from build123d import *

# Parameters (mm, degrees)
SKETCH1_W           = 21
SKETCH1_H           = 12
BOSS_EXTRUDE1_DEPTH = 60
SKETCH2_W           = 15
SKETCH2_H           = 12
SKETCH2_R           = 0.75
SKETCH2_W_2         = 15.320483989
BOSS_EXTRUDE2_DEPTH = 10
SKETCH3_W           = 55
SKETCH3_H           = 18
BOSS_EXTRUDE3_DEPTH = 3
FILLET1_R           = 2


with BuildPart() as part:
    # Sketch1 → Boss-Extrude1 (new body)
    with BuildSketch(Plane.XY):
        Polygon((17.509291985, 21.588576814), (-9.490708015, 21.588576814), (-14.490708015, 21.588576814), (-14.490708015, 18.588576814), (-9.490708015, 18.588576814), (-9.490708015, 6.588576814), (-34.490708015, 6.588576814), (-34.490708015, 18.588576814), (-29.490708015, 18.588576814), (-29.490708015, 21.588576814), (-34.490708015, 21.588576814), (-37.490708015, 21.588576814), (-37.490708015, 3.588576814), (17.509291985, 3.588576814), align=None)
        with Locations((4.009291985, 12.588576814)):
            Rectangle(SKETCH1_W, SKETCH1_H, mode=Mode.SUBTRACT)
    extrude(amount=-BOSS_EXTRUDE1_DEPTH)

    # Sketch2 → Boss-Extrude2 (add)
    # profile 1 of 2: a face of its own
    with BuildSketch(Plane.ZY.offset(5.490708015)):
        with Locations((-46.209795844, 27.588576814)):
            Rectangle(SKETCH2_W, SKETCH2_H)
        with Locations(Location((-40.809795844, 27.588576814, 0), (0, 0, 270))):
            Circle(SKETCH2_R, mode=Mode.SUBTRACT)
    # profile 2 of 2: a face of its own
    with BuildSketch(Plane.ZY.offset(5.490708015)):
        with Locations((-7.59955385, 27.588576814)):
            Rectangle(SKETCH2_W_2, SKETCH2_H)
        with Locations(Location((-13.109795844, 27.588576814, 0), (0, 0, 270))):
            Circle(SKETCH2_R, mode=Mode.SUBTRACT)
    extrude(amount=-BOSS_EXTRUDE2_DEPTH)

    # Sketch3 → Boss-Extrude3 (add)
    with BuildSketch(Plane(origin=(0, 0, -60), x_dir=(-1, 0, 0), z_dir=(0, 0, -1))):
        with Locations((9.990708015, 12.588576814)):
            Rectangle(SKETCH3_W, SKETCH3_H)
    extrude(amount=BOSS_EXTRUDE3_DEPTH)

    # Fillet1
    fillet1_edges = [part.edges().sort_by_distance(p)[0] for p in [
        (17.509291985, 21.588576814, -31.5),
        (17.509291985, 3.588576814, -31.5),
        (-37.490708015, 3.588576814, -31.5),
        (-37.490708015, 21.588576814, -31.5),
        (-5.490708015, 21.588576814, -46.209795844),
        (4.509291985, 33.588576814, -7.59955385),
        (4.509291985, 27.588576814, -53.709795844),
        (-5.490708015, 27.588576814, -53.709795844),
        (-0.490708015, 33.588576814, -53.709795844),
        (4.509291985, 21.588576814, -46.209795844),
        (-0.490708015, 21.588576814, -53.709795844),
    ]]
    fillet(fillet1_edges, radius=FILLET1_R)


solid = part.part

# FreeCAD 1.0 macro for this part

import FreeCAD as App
import Part
import Sketcher


def edges_at(feature, points):
    """Names of the edges that pass closest to the given points."""
    edges = feature.Shape.Edges
    near = lambda p: min(range(len(edges)), key=lambda i: edges[i].distToShape(Part.Vertex(*p))[0])
    return sorted({f"Edge{near(p) + 1}" for p in points})


def add_polygon(sketch, points):
    """Adds a closed chain of lines whose ends are joined by coincident constraints."""
    first, n = sketch.GeometryCount, len(points)
    for a, b in zip(points, points[1:] + points[:1]):
        sketch.addGeometry(Part.LineSegment(App.Vector(*a, 0), App.Vector(*b, 0)), False)
    for i in range(n):
        sketch.addConstraint(Sketcher.Constraint("Coincident", first + i, 2, first + (i + 1) % n, 1))

doc = App.newDocument("Part")
body = doc.addObject("PartDesign::Body", "Body")

sketch1 = body.newObject("Sketcher::SketchObject", "Sketch")
sketch1.AttachmentSupport = (doc.getObject("XY_Plane"), [""])
sketch1.MapMode = "FlatFace"
add_polygon(sketch1, [(17.5, 21.6), (-14.5, 21.6), (-14.5, 18.6), (-9.5, 18.6), (-9.5, 6.6), (-34.5, 6.6), (-34.5, 18.6), (-29.5, 18.6), (-29.5, 21.6), (-37.5, 21.6), (-37.5, 3.6), (17.5, 3.6)])
add_polygon(sketch1, [(14.5, 6.6), (-6.5, 6.6), (-6.5, 18.6), (14.5, 18.6)])
sketch1.addConstraint([
    Sketcher.Constraint("Horizontal", 0),
    Sketcher.Constraint("Vertical", 1),
    Sketcher.Constraint("Horizontal", 2),
    Sketcher.Constraint("Vertical", 3),
    Sketcher.Constraint("Horizontal", 4),
    Sketcher.Constraint("Vertical", 5),
    Sketcher.Constraint("Horizontal", 6),
    Sketcher.Constraint("Vertical", 7),
    Sketcher.Constraint("Horizontal", 8),
    Sketcher.Constraint("Vertical", 9),
    Sketcher.Constraint("Horizontal", 10),
    Sketcher.Constraint("Vertical", 11),
    Sketcher.Constraint("Horizontal", 12),
    Sketcher.Constraint("Vertical", 13),
    Sketcher.Constraint("Horizontal", 14),
    Sketcher.Constraint("Vertical", 15),
    Sketcher.Constraint("Horizontal", 2, 2, 5, 2),
    Sketcher.Constraint("Horizontal", 0, 2, 7, 2),
    Sketcher.Constraint("Horizontal", 4, 2, 12, 2),
    Sketcher.Constraint("Horizontal", 6, 2, 13, 2),
    Sketcher.Constraint("Equal", 2, 6),
    Sketcher.Constraint("DistanceX", 0, 2, 0, 1, 32.0),
    Sketcher.Constraint("DistanceX", 2, 1, 2, 2, 5.0),
    Sketcher.Constraint("DistanceX", 4, 2, 4, 1, 25.0),
    Sketcher.Constraint("DistanceX", 8, 2, 8, 1, 8.0),
    Sketcher.Constraint("DistanceX", 12, 2, 12, 1, 21.0),
    Sketcher.Constraint("DistanceY", 1, 2, 1, 1, 3.0),
    Sketcher.Constraint("DistanceY", 3, 2, 3, 1, 12.0),
    Sketcher.Constraint("DistanceY", 9, 2, 9, 1, 18.0),
    Sketcher.Constraint("DistanceX", 3, 2, 12, 2, 3.0),
    Sketcher.Constraint("DistanceX", 0, 2, -1, 1, 14.490708),
    Sketcher.Constraint("DistanceY", -1, 1, 0, 2, 21.588577),
])
pad1 = body.newObject("PartDesign::Pad", "Pad")
pad1.Profile = sketch1
pad1.Length = 60
pad1.Reversed = True

sketch2 = body.newObject("Sketcher::SketchObject", "Sketch001")
sketch2.AttachmentSupport = (doc.getObject("YZ_Plane"), [""])
sketch2.MapMode = "FlatFace"
sketch2.AttachmentOffset = App.Placement(App.Vector(0, 0, -5.490708), App.Rotation())
add_polygon(sketch2, [(33.6, -53.7), (21.6, -53.7), (21.6, -38.7), (33.6, -38.7)])
sketch2.addGeometry(Part.Circle(App.Vector(27.6, -40.8, 0), App.Vector(0, 0, 1), 0.8), False)
add_polygon(sketch2, [(33.6, -15.3), (21.6, -15.3), (21.6, 0.1), (33.6, 0.1)])
sketch2.addGeometry(Part.Circle(App.Vector(27.6, -13.1, 0), App.Vector(0, 0, 1), 0.8), False)
sketch2.addConstraint([
    Sketcher.Constraint("Horizontal", 0),
    Sketcher.Constraint("Vertical", 1),
    Sketcher.Constraint("Horizontal", 2),
    Sketcher.Constraint("Vertical", 3),
    Sketcher.Constraint("Horizontal", 5),
    Sketcher.Constraint("Vertical", 6),
    Sketcher.Constraint("Horizontal", 7),
    Sketcher.Constraint("Vertical", 8),
    Sketcher.Constraint("Equal", 4, 9),
    Sketcher.Constraint("Vertical", 4, 3, 9, 3),
    Sketcher.Constraint("Vertical", 1, 2, 5, 2),
    Sketcher.Constraint("Vertical", 3, 2, 7, 2),
    Sketcher.Constraint("Diameter", 4, 1.5),
    Sketcher.Constraint("DistanceX", 0, 2, 0, 1, 12.0),
    Sketcher.Constraint("DistanceY", 1, 1, 1, 2, 15.0),
    Sketcher.Constraint("DistanceX", 0, 2, 4, 3, 6.0),
    Sketcher.Constraint("DistanceY", 4, 3, 9, 3, 27.7),
    Sketcher.Constraint("DistanceY", 0, 2, 4, 3, 12.9),
    Sketcher.Constraint("DistanceY", 5, 2, 9, 3, 2.15),
    Sketcher.Constraint("DistanceY", 6, 1, 6, 2, 15.320484),
    Sketcher.Constraint("DistanceY", -1, 1, 6, 2, 0.060688),
    Sketcher.Constraint("DistanceX", -1, 1, 4, 3, 27.588577),
])
pad2 = body.newObject("PartDesign::Pad", "Pad001")
pad2.Profile = sketch2
pad2.Length = 10

sketch3 = body.newObject("Sketcher::SketchObject", "Sketch002")
sketch3.AttachmentSupport = (doc.getObject("XY_Plane"), [""])
sketch3.MapMode = "FlatFace"
sketch3.AttachmentOffset = App.Placement(App.Vector(0, 0, -60), App.Rotation())
add_polygon(sketch3, [(18, 22), (18, 4), (-37, 4), (-37, 22)])
sketch3.addConstraint([
    Sketcher.Constraint("Vertical", 0),
    Sketcher.Constraint("Horizontal", 1),
    Sketcher.Constraint("Vertical", 2),
    Sketcher.Constraint("Horizontal", 3),
    Sketcher.Constraint("DistanceX", 1, 2, 1, 1, 55.0),
    Sketcher.Constraint("DistanceY", 0, 2, 0, 1, 18.0),
    Sketcher.Constraint("DistanceX", -1, 1, 0, 2, 17.509292),
    Sketcher.Constraint("DistanceY", -1, 1, 0, 2, 3.588577),
])
pad3 = body.newObject("PartDesign::Pad", "Pad002")
pad3.Profile = sketch3
pad3.Length = 3
pad3.Reversed = True
doc.recompute()

fillet = body.newObject("PartDesign::Fillet", "Fillet")
fillet.Base = (pad3, edges_at(pad3, [
    (17.509, 21.589, -31.5),
    (17.509, 3.589, -31.5),
    (-37.491, 3.589, -31.5),
    (-37.491, 21.589, -31.5),
    (-5.491, 21.589, -46.21),
    (4.509, 33.589, -7.6),
    (4.509, 27.589, -53.71),
    (-5.491, 27.589, -53.71),
    (-0.491, 33.589, -53.71),
    (4.509, 21.589, -46.21),
    (-0.491, 21.589, -53.71),
]))
fillet.Radius = 2

doc.recompute()
